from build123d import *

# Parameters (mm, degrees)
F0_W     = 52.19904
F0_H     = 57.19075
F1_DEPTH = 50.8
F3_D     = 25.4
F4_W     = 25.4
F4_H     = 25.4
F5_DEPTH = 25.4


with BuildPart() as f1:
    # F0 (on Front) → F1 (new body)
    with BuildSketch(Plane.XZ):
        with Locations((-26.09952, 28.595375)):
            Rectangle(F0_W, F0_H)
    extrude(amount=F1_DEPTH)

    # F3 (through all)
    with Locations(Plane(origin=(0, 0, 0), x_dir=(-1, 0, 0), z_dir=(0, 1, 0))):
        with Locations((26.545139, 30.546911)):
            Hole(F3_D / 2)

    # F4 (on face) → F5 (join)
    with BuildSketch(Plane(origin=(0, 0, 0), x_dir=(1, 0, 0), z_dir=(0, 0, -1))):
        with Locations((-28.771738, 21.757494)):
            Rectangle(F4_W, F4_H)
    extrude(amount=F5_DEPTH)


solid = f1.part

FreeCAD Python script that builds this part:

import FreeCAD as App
import Part
import Sketcher

V = App.Vector
Q = App.Units.Quantity


def add_polygon(sketch, points):
    """Adds a closed chain of lines whose ends are joined by coincident constraints."""
    first, n = sketch.GeometryCount, len(points)
    for a, b in zip(points, points[1:] + points[:1]):
        sketch.addGeometry(Part.LineSegment(App.Vector(*a, 0), App.Vector(*b, 0)), False)
    for i in range(n):
        sketch.addConstraint(Sketcher.Constraint("Coincident", first + i, 2, first + (i + 1) % n, 1))

doc = App.newDocument("Part")
params = doc.addObject("Spreadsheet::Sheet", "Params")
for row, (alias, value) in enumerate([
    ("pad1_length", "2 in"),
    ("sketch2_diameter", "1 in"),
    ("hole_diameter", "1 in"),
    ("sketch3_width", "1 in"),
    ("pad2_length", "1 in"),
], start=1):
    params.set(f"A{row}", alias)
    params.set(f"B{row}", "=" + value)
    params.setAlias(f"B{row}", alias)

body = doc.addObject("PartDesign::Body", "Body")

sketch1 = body.newObject("Sketcher::SketchObject", "Sketch")
sketch1.AttachmentSupport = (doc.getObject("XZ_Plane"), [""])
sketch1.MapMode = "FlatFace"
add_polygon(sketch1, [(-52, 57), (-52, 0), (0, 0), (0, 57)])
sketch1.addConstraint([
    Sketcher.Constraint("Vertical", 0),
    Sketcher.Constraint("Horizontal", 1),
    Sketcher.Constraint("Vertical", 2),
    Sketcher.Constraint("Horizontal", 3),
    Sketcher.Constraint("Coincident", 1, 2, -1, 1),
    Sketcher.Constraint("DistanceX", 1, 1, 1, 2, 52.19904),
    Sketcher.Constraint("DistanceY", 0, 2, 0, 1, 57.19075),
])
pad1 = body.newObject("PartDesign::Pad", "Pad")
pad1.Profile = sketch1
pad1.setExpression("Length", "Params.pad1_length")

sketch2 = body.newObject("Sketcher::SketchObject", "Sketch001")
sketch2.AttachmentSupport = (doc.getObject("XZ_Plane"), [""])
sketch2.MapMode = "FlatFace"
sketch2.addGeometry(Part.Circle(V(-27, 31, 0), V(0, 0, 1), 13), False)
sketch2.addConstraint([
    Sketcher.Constraint("Diameter", 0, Q("1 in")),
    Sketcher.Constraint("DistanceX", 0, 3, -1, 1, 26.545139),
    Sketcher.Constraint("DistanceY", -1, 1, 0, 3, 30.546911),
])
sketch2.setExpression("Constraints[0]", "Params.sketch2_diameter")
doc.recompute()
hole = body.newObject("PartDesign::Hole", "Hole")
hole.Profile = sketch2
hole.ThreadType = "None"
hole.setExpression("Diameter", "Params.hole_diameter")
hole.DepthType = "ThroughAll"
hole.Reversed = True

sketch3 = body.newObject("Sketcher::SketchObject", "Sketch002")
sketch3.AttachmentSupport = (doc.getObject("XY_Plane"), [""])
sketch3.MapMode = "FlatFace"
add_polygon(sketch3, [(-41, -34), (-41, -9), (-16, -9), (-16, -34)])
sketch3.addConstraint([
    Sketcher.Constraint("Vertical", 0),
    Sketcher.Constraint("Horizontal", 1),
    Sketcher.Constraint("Vertical", 2),
    Sketcher.Constraint("Horizontal", 3),
    Sketcher.Constraint("Equal", 3, 0),
    Sketcher.Constraint("DistanceX", 1, 1, 1, 2, Q("1 in")),
    Sketcher.Constraint("DistanceX", 0, 2, -1, 1, 41.471738),
    Sketcher.Constraint("DistanceY", 0, 2, -1, 1, 9.057494),
])
sketch3.setExpression("Constraints[9]", "Params.sketch3_width")
pad2 = body.newObject("PartDesign::Pad", "Pad001")
pad2.Profile = sketch3
pad2.setExpression("Length", "Params.pad2_length")
pad2.Reversed = True

doc.recompute()
